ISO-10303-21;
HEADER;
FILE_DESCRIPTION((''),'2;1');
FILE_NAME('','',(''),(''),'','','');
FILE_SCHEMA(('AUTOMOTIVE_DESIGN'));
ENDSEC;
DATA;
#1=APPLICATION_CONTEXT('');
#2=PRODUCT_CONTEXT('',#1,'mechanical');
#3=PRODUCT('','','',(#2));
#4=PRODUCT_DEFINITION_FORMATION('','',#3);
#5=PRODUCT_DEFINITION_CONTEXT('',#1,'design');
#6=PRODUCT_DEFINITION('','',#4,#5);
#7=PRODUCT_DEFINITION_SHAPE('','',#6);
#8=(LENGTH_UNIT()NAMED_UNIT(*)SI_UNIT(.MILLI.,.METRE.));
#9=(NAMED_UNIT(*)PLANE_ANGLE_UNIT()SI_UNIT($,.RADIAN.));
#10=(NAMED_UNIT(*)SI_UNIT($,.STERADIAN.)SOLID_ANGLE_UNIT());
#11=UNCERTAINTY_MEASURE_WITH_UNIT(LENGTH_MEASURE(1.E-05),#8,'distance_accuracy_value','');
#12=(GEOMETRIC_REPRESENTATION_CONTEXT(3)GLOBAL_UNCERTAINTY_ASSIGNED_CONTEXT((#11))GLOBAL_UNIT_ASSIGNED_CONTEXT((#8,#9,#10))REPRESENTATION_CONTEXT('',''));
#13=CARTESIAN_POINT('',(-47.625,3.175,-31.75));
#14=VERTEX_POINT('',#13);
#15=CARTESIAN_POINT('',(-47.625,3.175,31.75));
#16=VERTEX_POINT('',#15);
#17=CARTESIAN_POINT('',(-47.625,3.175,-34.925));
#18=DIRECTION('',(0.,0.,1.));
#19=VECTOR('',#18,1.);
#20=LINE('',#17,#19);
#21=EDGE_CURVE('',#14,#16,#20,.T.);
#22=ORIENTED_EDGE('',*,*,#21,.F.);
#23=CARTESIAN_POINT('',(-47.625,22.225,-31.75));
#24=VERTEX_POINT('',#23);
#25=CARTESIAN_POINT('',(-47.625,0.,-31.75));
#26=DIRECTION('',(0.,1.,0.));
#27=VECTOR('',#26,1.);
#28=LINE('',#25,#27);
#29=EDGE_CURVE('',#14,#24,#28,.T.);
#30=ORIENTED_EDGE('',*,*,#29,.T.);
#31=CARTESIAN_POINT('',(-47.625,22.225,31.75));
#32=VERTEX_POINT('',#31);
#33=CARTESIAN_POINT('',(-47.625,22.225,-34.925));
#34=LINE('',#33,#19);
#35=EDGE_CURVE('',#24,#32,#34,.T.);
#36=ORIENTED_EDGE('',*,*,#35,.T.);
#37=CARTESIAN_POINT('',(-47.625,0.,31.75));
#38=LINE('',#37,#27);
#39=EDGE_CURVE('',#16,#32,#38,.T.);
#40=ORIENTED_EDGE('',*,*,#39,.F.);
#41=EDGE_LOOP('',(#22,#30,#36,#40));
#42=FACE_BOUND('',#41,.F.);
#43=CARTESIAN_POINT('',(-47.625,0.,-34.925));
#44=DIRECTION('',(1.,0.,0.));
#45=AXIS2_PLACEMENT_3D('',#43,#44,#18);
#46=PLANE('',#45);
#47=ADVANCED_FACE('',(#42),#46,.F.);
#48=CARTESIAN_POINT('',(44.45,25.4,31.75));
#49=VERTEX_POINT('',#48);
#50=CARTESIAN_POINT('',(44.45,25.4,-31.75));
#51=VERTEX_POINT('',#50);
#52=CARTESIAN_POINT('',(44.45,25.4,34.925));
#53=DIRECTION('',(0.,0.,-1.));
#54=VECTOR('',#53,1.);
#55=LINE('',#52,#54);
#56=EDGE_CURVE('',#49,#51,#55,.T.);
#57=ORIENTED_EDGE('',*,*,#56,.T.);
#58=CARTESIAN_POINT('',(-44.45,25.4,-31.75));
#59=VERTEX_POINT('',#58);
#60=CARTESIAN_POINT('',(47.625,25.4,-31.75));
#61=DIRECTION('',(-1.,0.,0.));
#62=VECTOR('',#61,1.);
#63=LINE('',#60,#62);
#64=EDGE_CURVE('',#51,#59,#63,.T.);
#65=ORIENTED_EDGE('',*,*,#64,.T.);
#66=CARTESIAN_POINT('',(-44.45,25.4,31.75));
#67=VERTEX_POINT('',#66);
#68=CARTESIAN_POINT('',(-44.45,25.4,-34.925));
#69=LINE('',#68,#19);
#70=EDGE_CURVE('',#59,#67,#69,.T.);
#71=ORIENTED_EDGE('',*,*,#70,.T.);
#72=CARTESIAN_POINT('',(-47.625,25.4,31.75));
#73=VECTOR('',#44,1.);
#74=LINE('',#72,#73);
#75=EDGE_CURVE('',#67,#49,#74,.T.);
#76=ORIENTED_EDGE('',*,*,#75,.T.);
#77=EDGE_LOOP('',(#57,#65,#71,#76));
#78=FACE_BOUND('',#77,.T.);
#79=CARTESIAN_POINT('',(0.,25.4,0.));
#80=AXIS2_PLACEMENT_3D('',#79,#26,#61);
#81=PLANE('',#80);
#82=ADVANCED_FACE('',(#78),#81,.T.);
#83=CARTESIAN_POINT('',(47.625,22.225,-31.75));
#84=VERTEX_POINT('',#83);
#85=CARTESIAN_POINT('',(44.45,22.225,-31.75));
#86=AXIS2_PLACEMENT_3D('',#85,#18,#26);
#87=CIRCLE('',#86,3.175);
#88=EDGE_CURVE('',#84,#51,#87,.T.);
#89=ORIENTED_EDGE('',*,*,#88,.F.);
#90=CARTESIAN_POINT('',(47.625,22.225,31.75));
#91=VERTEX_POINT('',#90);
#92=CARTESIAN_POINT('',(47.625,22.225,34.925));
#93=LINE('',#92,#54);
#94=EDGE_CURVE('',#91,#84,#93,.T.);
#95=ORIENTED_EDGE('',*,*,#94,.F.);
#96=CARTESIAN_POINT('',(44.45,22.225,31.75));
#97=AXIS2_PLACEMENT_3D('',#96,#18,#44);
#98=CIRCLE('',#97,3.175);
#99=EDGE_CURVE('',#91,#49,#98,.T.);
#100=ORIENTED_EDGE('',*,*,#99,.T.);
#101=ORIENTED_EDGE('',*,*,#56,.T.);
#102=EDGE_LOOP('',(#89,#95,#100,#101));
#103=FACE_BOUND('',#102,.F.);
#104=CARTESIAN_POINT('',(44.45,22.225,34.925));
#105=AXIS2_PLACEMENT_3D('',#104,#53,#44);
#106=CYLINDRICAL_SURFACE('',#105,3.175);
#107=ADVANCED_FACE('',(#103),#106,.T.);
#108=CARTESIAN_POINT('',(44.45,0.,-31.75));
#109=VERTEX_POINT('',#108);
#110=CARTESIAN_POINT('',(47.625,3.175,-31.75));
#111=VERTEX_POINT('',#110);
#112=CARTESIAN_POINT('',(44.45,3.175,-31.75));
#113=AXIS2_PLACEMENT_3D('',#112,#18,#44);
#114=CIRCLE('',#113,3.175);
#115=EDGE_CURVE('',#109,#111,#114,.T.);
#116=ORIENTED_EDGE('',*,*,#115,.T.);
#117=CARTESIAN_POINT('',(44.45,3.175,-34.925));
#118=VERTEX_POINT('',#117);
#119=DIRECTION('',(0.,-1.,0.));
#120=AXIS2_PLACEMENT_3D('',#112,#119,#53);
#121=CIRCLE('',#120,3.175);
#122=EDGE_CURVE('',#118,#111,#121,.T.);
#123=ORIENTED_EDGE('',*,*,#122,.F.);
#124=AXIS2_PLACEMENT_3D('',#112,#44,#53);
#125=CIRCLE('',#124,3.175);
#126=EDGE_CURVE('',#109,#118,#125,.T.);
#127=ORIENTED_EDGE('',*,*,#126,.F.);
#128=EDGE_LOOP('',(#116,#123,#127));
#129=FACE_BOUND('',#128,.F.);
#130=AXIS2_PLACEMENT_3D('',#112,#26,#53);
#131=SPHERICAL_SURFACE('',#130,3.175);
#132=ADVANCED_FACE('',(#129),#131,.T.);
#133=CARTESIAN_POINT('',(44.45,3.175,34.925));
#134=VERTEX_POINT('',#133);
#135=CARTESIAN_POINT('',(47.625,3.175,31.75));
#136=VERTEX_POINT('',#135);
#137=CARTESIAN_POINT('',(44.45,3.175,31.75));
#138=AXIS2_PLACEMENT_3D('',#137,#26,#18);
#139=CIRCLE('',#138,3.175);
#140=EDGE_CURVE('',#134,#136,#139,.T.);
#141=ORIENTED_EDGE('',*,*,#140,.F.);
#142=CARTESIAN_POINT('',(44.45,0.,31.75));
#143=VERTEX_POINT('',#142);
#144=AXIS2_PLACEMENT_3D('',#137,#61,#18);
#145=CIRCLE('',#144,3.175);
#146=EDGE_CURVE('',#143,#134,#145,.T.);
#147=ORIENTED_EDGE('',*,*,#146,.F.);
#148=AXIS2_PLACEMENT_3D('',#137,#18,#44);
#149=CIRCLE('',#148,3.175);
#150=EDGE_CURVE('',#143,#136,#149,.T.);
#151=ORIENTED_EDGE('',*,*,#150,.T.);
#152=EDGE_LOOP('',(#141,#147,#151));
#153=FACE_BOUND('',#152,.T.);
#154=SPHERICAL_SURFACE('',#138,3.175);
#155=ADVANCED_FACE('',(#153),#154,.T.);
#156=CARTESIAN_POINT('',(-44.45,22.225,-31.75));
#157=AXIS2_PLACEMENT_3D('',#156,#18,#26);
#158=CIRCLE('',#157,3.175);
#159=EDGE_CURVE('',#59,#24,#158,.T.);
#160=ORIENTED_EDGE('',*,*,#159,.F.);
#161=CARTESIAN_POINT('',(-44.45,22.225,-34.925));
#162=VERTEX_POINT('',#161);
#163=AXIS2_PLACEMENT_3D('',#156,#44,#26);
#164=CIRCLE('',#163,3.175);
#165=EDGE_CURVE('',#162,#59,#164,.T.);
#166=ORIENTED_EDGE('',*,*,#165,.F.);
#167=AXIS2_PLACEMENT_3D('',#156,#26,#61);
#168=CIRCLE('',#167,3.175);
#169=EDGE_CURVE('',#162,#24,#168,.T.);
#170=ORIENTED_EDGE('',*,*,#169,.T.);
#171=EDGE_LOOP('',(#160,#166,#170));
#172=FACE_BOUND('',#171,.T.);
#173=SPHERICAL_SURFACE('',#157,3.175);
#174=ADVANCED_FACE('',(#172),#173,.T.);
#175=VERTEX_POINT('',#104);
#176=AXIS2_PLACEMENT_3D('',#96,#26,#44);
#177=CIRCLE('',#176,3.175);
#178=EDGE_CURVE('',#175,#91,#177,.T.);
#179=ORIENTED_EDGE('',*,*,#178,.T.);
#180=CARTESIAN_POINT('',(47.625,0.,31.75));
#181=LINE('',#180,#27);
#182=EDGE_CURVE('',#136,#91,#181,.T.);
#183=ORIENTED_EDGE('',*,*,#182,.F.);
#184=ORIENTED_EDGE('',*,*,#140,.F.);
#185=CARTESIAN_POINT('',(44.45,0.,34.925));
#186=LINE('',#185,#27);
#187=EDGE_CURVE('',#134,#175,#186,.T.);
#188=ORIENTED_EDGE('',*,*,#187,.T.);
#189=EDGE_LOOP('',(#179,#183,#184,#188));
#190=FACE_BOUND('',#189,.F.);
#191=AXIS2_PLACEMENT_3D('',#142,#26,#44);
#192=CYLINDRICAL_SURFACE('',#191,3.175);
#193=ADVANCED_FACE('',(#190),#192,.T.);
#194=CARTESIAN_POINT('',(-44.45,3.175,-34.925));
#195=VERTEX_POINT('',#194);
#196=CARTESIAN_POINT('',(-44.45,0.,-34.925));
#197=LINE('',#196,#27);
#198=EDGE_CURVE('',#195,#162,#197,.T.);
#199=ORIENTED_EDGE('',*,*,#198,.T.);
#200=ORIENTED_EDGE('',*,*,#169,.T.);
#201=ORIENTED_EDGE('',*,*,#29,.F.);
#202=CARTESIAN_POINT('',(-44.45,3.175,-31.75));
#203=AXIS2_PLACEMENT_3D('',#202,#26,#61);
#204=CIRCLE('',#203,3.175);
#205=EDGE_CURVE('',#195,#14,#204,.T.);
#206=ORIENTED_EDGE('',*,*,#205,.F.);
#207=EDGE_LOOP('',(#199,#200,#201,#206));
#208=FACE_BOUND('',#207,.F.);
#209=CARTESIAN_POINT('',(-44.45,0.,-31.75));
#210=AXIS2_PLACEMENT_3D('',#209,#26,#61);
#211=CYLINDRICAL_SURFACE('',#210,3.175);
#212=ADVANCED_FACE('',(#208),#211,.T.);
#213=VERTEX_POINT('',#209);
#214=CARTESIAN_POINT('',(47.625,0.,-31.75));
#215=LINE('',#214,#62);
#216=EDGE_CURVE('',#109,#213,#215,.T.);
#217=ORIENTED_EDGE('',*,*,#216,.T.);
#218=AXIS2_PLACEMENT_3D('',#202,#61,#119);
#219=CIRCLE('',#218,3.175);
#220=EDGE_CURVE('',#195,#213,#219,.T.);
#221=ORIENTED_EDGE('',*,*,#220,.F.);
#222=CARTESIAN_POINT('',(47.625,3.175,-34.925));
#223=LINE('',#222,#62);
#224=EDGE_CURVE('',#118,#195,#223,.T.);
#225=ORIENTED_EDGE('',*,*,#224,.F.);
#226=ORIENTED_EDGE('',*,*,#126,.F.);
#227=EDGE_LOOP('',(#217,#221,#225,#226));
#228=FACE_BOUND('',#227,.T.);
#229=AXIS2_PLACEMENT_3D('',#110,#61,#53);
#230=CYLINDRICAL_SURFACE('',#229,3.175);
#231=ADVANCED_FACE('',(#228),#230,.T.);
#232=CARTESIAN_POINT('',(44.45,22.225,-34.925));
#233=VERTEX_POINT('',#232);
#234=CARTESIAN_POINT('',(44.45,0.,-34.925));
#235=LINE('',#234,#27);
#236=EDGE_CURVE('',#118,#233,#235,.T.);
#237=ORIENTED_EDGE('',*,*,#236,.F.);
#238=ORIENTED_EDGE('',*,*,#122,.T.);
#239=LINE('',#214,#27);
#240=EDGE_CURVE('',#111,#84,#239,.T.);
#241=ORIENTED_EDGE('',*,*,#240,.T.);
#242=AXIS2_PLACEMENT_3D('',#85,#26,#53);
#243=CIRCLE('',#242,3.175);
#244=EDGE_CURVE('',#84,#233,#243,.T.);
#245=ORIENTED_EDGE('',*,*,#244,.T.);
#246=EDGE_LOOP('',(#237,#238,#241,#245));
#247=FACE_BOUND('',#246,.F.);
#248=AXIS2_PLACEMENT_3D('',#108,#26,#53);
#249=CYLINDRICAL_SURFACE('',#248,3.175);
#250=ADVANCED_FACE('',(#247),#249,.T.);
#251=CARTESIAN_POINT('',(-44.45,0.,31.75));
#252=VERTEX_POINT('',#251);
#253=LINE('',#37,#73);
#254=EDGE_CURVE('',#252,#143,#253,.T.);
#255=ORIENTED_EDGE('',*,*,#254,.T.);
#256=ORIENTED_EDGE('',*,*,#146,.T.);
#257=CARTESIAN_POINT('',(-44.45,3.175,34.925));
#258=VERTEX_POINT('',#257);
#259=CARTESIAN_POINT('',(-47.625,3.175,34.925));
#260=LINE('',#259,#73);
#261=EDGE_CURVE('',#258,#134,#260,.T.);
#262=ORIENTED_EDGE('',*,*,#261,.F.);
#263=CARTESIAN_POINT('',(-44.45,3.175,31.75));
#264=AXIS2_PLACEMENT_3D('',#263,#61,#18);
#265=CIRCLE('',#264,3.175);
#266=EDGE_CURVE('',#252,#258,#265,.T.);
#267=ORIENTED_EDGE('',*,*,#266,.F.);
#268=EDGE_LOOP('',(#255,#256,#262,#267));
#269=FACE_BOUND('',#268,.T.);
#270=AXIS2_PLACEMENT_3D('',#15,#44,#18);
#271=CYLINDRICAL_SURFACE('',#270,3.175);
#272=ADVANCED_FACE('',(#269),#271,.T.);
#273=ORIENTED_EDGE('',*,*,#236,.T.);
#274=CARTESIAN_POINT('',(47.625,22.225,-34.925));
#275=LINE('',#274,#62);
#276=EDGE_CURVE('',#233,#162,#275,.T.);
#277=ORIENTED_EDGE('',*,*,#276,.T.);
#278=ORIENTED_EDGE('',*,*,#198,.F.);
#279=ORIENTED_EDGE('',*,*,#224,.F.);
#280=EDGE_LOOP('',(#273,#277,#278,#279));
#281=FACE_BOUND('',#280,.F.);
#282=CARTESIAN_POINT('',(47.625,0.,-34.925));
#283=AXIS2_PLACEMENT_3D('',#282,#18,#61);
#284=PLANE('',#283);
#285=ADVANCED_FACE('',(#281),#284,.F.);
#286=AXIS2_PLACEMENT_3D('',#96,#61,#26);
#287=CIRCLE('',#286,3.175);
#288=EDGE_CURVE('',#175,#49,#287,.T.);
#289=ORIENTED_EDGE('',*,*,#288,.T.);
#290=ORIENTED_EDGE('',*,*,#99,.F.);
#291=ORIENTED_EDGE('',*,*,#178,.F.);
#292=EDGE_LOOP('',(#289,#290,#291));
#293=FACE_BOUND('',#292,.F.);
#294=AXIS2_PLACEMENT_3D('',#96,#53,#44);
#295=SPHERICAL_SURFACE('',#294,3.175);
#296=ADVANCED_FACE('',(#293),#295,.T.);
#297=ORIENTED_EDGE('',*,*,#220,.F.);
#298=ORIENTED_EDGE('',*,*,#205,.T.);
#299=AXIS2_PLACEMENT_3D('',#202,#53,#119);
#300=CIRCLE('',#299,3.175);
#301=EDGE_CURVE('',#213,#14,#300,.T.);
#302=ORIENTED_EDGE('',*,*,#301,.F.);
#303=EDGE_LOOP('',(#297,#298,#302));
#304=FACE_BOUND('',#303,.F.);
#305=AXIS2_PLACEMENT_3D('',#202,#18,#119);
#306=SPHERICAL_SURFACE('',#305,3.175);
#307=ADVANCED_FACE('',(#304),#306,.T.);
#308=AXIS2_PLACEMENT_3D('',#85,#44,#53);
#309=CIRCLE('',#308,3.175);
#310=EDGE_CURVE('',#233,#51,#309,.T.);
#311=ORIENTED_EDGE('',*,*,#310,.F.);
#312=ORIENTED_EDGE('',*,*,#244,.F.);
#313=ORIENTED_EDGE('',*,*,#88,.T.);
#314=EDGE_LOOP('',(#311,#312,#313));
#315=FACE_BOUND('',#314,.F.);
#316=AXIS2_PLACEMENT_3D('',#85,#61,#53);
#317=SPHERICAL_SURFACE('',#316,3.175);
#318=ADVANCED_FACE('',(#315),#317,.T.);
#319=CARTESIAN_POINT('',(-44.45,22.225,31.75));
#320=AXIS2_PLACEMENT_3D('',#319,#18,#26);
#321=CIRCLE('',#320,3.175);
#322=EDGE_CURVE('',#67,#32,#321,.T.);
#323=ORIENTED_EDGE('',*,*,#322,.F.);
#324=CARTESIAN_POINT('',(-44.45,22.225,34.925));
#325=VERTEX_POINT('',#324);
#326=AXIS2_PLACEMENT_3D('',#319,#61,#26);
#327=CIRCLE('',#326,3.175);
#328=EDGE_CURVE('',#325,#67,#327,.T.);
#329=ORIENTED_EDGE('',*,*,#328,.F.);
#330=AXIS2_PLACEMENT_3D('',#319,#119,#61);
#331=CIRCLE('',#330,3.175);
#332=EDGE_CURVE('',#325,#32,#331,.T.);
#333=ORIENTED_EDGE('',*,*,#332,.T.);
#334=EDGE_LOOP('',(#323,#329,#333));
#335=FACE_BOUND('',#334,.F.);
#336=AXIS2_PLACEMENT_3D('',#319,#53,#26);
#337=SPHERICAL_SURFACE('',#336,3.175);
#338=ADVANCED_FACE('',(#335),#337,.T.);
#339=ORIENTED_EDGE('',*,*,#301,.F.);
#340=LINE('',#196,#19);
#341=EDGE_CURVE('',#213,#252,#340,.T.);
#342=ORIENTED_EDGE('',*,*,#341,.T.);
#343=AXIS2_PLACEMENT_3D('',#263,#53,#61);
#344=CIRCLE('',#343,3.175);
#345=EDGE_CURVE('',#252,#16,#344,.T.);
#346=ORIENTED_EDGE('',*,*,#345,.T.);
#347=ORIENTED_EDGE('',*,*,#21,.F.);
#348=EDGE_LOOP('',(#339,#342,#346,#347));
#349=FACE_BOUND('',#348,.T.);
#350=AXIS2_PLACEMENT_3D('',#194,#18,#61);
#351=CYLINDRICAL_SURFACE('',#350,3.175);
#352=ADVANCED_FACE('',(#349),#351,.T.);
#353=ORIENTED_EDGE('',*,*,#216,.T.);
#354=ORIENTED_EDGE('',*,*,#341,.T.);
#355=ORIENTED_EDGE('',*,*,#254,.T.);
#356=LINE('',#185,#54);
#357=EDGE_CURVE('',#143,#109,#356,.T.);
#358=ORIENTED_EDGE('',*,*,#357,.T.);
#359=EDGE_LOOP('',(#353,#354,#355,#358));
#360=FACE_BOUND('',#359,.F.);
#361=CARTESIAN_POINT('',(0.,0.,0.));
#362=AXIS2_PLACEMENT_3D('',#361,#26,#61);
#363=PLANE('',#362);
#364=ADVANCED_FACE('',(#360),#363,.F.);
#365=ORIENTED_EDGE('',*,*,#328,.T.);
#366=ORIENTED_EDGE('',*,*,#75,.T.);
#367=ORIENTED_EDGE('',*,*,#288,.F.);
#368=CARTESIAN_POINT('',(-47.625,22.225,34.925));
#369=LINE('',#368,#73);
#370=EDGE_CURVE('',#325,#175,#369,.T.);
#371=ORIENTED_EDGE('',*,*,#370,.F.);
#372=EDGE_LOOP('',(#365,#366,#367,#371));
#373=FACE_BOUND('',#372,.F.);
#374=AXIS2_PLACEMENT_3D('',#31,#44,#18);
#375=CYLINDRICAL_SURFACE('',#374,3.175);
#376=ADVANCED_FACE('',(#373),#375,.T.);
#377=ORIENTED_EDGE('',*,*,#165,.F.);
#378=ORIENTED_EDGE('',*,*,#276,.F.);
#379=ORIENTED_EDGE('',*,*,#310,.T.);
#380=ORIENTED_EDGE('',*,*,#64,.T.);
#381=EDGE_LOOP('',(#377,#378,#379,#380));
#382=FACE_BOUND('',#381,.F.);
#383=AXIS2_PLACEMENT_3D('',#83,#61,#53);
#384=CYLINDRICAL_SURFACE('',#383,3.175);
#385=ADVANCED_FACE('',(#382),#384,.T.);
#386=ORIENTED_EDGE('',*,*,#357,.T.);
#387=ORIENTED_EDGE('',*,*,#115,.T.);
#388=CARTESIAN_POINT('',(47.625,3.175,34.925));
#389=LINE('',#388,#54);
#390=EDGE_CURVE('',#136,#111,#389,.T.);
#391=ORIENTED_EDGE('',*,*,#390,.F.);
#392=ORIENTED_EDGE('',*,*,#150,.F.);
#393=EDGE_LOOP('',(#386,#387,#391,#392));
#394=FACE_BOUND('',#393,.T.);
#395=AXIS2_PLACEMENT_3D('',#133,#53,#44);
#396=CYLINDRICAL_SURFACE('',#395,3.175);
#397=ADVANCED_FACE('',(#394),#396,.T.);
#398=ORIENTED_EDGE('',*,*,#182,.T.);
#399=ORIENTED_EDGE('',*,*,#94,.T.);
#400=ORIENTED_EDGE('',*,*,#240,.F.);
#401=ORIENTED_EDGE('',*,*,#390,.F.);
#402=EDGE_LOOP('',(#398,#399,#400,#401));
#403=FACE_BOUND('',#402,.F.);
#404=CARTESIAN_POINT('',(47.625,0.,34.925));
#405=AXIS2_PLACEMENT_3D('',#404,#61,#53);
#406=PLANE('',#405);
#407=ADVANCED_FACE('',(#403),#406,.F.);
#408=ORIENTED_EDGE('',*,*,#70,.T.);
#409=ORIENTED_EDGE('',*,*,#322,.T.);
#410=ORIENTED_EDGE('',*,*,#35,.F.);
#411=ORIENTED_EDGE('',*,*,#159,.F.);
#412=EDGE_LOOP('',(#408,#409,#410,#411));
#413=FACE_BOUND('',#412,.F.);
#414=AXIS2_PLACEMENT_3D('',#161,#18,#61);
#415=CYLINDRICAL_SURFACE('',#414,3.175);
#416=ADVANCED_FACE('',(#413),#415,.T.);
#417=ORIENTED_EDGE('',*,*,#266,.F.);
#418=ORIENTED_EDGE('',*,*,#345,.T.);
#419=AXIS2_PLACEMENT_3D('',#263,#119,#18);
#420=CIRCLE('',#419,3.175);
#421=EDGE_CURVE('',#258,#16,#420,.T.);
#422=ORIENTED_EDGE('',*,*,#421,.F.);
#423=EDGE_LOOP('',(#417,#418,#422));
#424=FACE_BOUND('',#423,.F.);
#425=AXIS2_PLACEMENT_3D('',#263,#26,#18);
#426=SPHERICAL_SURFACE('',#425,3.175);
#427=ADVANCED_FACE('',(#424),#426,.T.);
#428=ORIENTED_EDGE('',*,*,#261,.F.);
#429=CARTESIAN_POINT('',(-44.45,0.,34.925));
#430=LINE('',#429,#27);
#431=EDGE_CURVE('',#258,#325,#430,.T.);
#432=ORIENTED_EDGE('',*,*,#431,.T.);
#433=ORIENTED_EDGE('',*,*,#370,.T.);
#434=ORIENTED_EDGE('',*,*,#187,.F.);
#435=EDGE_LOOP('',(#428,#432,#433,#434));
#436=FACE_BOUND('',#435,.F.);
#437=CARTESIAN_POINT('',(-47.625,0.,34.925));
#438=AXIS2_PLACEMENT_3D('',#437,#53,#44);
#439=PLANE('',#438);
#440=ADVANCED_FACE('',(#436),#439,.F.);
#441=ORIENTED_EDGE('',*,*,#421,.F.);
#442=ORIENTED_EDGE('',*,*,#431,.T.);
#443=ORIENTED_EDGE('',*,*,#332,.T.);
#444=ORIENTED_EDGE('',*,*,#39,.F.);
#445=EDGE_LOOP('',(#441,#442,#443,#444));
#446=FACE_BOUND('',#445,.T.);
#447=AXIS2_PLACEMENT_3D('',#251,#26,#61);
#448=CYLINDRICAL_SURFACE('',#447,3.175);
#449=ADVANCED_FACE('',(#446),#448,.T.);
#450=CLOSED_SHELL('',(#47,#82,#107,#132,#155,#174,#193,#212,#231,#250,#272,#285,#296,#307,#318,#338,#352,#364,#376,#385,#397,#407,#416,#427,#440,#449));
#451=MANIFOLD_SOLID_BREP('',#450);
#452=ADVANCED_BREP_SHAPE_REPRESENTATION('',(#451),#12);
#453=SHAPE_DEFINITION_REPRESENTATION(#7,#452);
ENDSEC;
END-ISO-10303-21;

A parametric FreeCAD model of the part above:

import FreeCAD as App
import Part
import Sketcher
from FreeCAD import Vector
Q = App.Units.Quantity

doc = App.newDocument("Part")
body = doc.addObject("PartDesign::Body", "Body")

sketch1 = body.newObject("Sketcher::SketchObject", "Sketch")
sketch1.AttachmentSupport = (doc.getObject("XZ_Plane"), [""])
sketch1.MapMode = "FlatFace"
sketch1.addGeometry([
    Part.LineSegment(Vector(-47.625, -34.925, 0), Vector(-47.625, 34.925, 0)),
    Part.LineSegment(Vector(-47.625, 34.925, 0), Vector(47.625, 34.925, 0)),
    Part.LineSegment(Vector(47.625, 34.925, 0), Vector(47.625, -34.925, 0)),
    Part.LineSegment(Vector(47.625, -34.925, 0), Vector(-47.625, -34.925, 0)),
], False)
sketch1.addConstraint([
    Sketcher.Constraint("Coincident", 0, 2, 1, 1),
    Sketcher.Constraint("Coincident", 1, 2, 2, 1),
    Sketcher.Constraint("Coincident", 2, 2, 3, 1),
    Sketcher.Constraint("Coincident", 3, 2, 0, 1),
    Sketcher.Constraint("Vertical", 0),
    Sketcher.Constraint("Horizontal", 1),
    Sketcher.Constraint("Vertical", 2),
    Sketcher.Constraint("Horizontal", 3),
    Sketcher.Constraint("Symmetric", 0, 2, 2, 2, -1, 1),
    Sketcher.Constraint("DistanceX", 1, 1, 1, 2, Q("3.75 in")),
    Sketcher.Constraint("DistanceY", 0, 1, 0, 2, Q("2.75 in")),
])
pad1 = body.newObject("PartDesign::Pad", "Pad")
pad1.Profile = sketch1
pad1.Length = Q("1 in")
pad1.Reversed = True
doc.recompute()

fillet = body.newObject("PartDesign::Fillet", "Fillet")
fillet.Base = (pad1, ["Edge1"])
fillet.UseAllEdges = True
fillet.Radius = Q("0.125 in")

doc.recompute()
